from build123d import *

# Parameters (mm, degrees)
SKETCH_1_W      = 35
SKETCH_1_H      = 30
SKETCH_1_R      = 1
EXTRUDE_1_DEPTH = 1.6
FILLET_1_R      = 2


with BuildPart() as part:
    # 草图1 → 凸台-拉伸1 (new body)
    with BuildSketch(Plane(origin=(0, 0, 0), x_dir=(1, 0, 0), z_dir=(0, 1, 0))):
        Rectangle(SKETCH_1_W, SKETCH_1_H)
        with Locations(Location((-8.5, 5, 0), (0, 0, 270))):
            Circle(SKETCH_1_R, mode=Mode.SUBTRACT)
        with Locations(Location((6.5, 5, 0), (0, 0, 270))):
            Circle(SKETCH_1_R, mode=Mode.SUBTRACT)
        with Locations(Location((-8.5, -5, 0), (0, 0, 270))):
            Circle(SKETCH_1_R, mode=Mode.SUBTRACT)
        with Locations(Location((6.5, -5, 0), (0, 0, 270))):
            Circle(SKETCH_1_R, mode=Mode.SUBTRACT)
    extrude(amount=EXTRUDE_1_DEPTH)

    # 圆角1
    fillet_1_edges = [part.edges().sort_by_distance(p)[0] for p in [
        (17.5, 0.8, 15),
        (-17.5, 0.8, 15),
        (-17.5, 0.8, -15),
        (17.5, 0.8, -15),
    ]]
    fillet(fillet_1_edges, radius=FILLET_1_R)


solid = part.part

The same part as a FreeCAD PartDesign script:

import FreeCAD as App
import Part
import Sketcher
from FreeCAD import Vector
Q = App.Units.Quantity


def edges_at(feature, points):
    """Names of the edges that pass closest to the given points."""
    edges = feature.Shape.Edges
    near = lambda p: min(range(len(edges)), key=lambda i: edges[i].distToShape(Part.Vertex(*p))[0])
    return sorted({f"Edge{near(p) + 1}" for p in points})


def add_polygon(sketch, points):
    """Adds a closed chain of lines whose ends are joined by coincident constraints."""
    first, n = sketch.GeometryCount, len(points)
    for a, b in zip(points, points[1:] + points[:1]):
        sketch.addGeometry(Part.LineSegment(App.Vector(*a, 0), App.Vector(*b, 0)), False)
    for i in range(n):
        sketch.addConstraint(Sketcher.Constraint("Coincident", first + i, 2, first + (i + 1) % n, 1))

doc = App.newDocument("Part")
params = doc.addObject("Spreadsheet::Sheet", "Params")
for row, (alias, value) in enumerate([
    ("sketch1_diameter", "2 mm"),
    ("sketch1_width", "35 mm"),
    ("sketch1_height", "30 mm"),
    ("pad1_length", "1.6 mm"),
    ("fillet_radius", "2 mm"),
], start=1):
    params.set(f"A{row}", alias)
    params.set(f"B{row}", "=" + value)
    params.setAlias(f"B{row}", alias)

body = doc.addObject("PartDesign::Body", "Body")

# Sketch on XZ plane
sketch1 = body.newObject("Sketcher::SketchObject", "Sketch")
sketch1.AttachmentSupport = (doc.getObject("XZ_Plane"), [""])
sketch1.MapMode = "FlatFace"
add_polygon(sketch1, [(-17.5, -15), (-17.5, 15), (17.5, 15), (17.5, -15)])  # lines 0-3
sketch1.addGeometry(Part.Circle(Vector(-8.5, 5, 0), Vector(0, 0, 1), 1), False)  # 4
sketch1.addGeometry(Part.Circle(Vector(6.5, 5, 0), Vector(0, 0, 1), 1), False)  # 5
sketch1.addGeometry(Part.Circle(Vector(-8.5, -5, 0), Vector(0, 0, 1), 1), False)  # 6
sketch1.addGeometry(Part.Circle(Vector(6.5, -5, 0), Vector(0, 0, 1), 1), False)  # 7
sketch1.addConstraint(Sketcher.Constraint("Vertical", 0))
sketch1.addConstraint(Sketcher.Constraint("Horizontal", 1))
sketch1.addConstraint(Sketcher.Constraint("Vertical", 2))
sketch1.addConstraint(Sketcher.Constraint("Horizontal", 3))
sketch1.addConstraint(Sketcher.Constraint("Equal", 4, 5))
sketch1.addConstraint(Sketcher.Constraint("Equal", 5, 6))
sketch1.addConstraint(Sketcher.Constraint("Equal", 6, 7))
sketch1.addConstraint(Sketcher.Constraint("Symmetric", 0, 2, 2, 2, -1, 1))
sketch1.addConstraint(Sketcher.Constraint("Symmetric", 4, 3, 6, 3, -1))
sketch1.addConstraint(Sketcher.Constraint("Symmetric", 5, 3, 7, 3, -1))
sketch1.addConstraint(Sketcher.Constraint("Horizontal", 4, 3, 5, 3))
sketch1.addConstraint(Sketcher.Constraint("Diameter", 4, Q("2 mm")))
sketch1.addConstraint(Sketcher.Constraint("DistanceX", 1, 1, 1, 2, Q("35 mm")))
sketch1.addConstraint(Sketcher.Constraint("DistanceY", 0, 1, 0, 2, Q("30 mm")))
sketch1.addConstraint(Sketcher.Constraint("DistanceY", -1, 1, 4, 3, Q("5 mm")))
sketch1.addConstraint(Sketcher.Constraint("DistanceX", 4, 3, 5, 3, Q("15 mm")))
sketch1.addConstraint(Sketcher.Constraint("DistanceX", 0, 2, 4, 3, Q("9 mm")))
sketch1.setExpression("Constraints[15]", "Params.sketch1_diameter")
sketch1.setExpression("Constraints[16]", "Params.sketch1_width")
sketch1.setExpression("Constraints[17]", "Params.sketch1_height")
pad1 = body.newObject("PartDesign::Pad", "Pad")
pad1.Profile = sketch1
pad1.setExpression("Length", "Params.pad1_length")
pad1.Reversed = True
doc.recompute()

fillet = body.newObject("PartDesign::Fillet", "Fillet")
fillet.Base = (pad1, edges_at(pad1, [
    (17.5, 0.8, 15),
    (-17.5, 0.8, 15),
    (-17.5, 0.8, -15),
    (17.5, 0.8, -15),
]))
fillet.setExpression("Radius", "Params.fillet_radius")

doc.recompute()
